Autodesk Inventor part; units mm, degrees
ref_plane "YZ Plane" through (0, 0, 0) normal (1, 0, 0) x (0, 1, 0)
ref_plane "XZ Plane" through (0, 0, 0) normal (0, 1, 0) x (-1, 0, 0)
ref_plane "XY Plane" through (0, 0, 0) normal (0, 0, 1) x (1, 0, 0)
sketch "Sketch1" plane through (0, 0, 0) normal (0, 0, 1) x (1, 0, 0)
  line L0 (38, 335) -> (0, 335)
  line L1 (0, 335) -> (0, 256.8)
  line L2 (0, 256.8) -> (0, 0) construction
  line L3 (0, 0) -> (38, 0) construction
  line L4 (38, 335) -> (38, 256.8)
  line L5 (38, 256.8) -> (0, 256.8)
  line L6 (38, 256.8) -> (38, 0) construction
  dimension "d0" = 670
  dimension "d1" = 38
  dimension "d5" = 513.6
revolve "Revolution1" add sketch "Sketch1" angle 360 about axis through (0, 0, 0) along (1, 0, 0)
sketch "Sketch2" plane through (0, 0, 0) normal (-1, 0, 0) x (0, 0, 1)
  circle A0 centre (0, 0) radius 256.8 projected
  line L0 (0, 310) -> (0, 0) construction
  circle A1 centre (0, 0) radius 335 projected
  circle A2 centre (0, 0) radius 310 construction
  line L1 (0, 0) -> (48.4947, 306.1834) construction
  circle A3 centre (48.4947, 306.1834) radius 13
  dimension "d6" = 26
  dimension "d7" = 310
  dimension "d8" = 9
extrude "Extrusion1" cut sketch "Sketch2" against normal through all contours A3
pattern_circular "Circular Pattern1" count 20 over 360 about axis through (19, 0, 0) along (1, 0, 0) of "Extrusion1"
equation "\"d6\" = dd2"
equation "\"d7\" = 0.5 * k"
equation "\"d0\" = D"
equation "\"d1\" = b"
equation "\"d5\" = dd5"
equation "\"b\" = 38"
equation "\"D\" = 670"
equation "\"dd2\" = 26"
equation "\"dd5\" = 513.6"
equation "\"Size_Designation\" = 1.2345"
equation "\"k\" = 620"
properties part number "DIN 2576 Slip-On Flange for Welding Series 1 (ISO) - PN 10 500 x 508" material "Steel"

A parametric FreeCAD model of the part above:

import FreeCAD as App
import Part
import Sketcher

V = App.Vector
Q = App.Units.Quantity

doc = App.newDocument("Part")
body = doc.addObject("PartDesign::Body", "Body")

# Sketch on XY plane
sketch1 = body.newObject("Sketcher::SketchObject", "Sketch")
sketch1.AttachmentSupport = (doc.getObject("XY_Plane"), [""])
sketch1.MapMode = "FlatFace"
sketch1.addGeometry(Part.LineSegment(V(38, 256.8, 0), V(38, 335, 0)), False)
sketch1.addGeometry(Part.LineSegment(V(38, 335, 0), V(0, 335, 0)), False)
sketch1.addGeometry(Part.LineSegment(V(0, 335, 0), V(0, 256.8, 0)), False)
sketch1.addGeometry(Part.LineSegment(V(0, 256.8, 0), V(38, 256.8, 0)), False)
sketch1.addConstraint(Sketcher.Constraint("Coincident", 0, 2, 1, 1))
sketch1.addConstraint(Sketcher.Constraint("Coincident", 1, 2, 2, 1))
sketch1.addConstraint(Sketcher.Constraint("Coincident", 2, 2, 3, 1))
sketch1.addConstraint(Sketcher.Constraint("Coincident", 3, 2, 0, 1))
sketch1.addConstraint(Sketcher.Constraint("Vertical", 0))
sketch1.addConstraint(Sketcher.Constraint("Horizontal", 1))
sketch1.addConstraint(Sketcher.Constraint("Vertical", 2))
sketch1.addConstraint(Sketcher.Constraint("Horizontal", 3))
sketch1.addConstraint(Sketcher.Constraint("PointOnObject", 1, 2, -2))
sketch1.addConstraint(Sketcher.Constraint("DistanceX", 1, 2, 1, 1, Q("38 mm")))
sketch1.addConstraint(Sketcher.Constraint("DistanceY", 0, 1, 0, 2, Q("78.2 mm")))
sketch1.addConstraint(Sketcher.Constraint("DistanceY", -1, 1, 0, 2, Q("335 mm")))
revolution = body.newObject("PartDesign::Revolution", "Revolution")
revolution.Profile = sketch1
revolution.ReferenceAxis = (sketch1, ["H_Axis"])
revolution.Angle = 360

# Sketch on YZ plane
sketch2 = body.newObject("Sketcher::SketchObject", "Sketch001")
sketch2.AttachmentSupport = (doc.getObject("YZ_Plane"), [""])
sketch2.MapMode = "FlatFace"
sketch2.addGeometry(Part.Circle(V(306.1834, 48.4947, 0), V(0, 0, 1), 13), False)
sketch2.addConstraint(Sketcher.Constraint("Diameter", 0, Q("26 mm")))
sketch2.addConstraint(Sketcher.Constraint("DistanceX", -1, 1, 0, 3, Q("306.1834 mm")))
sketch2.addConstraint(Sketcher.Constraint("DistanceY", -1, 1, 0, 3, Q("48.4947 mm")))
pocket1 = body.newObject("PartDesign::Pocket", "Pocket")
pocket1.Profile = sketch2
pocket1.Type = "ThroughAll"
pocket1.Reversed = True
doc.recompute()

polarpattern = body.newObject("PartDesign::PolarPattern", "PolarPattern")
polarpattern.Originals = [pocket1]
polarpattern.Axis = (doc.getObject("X_Axis"), [""])
polarpattern.Angle = 360
polarpattern.Occurrences = 20
body.Tip = polarpattern

doc.recompute()
